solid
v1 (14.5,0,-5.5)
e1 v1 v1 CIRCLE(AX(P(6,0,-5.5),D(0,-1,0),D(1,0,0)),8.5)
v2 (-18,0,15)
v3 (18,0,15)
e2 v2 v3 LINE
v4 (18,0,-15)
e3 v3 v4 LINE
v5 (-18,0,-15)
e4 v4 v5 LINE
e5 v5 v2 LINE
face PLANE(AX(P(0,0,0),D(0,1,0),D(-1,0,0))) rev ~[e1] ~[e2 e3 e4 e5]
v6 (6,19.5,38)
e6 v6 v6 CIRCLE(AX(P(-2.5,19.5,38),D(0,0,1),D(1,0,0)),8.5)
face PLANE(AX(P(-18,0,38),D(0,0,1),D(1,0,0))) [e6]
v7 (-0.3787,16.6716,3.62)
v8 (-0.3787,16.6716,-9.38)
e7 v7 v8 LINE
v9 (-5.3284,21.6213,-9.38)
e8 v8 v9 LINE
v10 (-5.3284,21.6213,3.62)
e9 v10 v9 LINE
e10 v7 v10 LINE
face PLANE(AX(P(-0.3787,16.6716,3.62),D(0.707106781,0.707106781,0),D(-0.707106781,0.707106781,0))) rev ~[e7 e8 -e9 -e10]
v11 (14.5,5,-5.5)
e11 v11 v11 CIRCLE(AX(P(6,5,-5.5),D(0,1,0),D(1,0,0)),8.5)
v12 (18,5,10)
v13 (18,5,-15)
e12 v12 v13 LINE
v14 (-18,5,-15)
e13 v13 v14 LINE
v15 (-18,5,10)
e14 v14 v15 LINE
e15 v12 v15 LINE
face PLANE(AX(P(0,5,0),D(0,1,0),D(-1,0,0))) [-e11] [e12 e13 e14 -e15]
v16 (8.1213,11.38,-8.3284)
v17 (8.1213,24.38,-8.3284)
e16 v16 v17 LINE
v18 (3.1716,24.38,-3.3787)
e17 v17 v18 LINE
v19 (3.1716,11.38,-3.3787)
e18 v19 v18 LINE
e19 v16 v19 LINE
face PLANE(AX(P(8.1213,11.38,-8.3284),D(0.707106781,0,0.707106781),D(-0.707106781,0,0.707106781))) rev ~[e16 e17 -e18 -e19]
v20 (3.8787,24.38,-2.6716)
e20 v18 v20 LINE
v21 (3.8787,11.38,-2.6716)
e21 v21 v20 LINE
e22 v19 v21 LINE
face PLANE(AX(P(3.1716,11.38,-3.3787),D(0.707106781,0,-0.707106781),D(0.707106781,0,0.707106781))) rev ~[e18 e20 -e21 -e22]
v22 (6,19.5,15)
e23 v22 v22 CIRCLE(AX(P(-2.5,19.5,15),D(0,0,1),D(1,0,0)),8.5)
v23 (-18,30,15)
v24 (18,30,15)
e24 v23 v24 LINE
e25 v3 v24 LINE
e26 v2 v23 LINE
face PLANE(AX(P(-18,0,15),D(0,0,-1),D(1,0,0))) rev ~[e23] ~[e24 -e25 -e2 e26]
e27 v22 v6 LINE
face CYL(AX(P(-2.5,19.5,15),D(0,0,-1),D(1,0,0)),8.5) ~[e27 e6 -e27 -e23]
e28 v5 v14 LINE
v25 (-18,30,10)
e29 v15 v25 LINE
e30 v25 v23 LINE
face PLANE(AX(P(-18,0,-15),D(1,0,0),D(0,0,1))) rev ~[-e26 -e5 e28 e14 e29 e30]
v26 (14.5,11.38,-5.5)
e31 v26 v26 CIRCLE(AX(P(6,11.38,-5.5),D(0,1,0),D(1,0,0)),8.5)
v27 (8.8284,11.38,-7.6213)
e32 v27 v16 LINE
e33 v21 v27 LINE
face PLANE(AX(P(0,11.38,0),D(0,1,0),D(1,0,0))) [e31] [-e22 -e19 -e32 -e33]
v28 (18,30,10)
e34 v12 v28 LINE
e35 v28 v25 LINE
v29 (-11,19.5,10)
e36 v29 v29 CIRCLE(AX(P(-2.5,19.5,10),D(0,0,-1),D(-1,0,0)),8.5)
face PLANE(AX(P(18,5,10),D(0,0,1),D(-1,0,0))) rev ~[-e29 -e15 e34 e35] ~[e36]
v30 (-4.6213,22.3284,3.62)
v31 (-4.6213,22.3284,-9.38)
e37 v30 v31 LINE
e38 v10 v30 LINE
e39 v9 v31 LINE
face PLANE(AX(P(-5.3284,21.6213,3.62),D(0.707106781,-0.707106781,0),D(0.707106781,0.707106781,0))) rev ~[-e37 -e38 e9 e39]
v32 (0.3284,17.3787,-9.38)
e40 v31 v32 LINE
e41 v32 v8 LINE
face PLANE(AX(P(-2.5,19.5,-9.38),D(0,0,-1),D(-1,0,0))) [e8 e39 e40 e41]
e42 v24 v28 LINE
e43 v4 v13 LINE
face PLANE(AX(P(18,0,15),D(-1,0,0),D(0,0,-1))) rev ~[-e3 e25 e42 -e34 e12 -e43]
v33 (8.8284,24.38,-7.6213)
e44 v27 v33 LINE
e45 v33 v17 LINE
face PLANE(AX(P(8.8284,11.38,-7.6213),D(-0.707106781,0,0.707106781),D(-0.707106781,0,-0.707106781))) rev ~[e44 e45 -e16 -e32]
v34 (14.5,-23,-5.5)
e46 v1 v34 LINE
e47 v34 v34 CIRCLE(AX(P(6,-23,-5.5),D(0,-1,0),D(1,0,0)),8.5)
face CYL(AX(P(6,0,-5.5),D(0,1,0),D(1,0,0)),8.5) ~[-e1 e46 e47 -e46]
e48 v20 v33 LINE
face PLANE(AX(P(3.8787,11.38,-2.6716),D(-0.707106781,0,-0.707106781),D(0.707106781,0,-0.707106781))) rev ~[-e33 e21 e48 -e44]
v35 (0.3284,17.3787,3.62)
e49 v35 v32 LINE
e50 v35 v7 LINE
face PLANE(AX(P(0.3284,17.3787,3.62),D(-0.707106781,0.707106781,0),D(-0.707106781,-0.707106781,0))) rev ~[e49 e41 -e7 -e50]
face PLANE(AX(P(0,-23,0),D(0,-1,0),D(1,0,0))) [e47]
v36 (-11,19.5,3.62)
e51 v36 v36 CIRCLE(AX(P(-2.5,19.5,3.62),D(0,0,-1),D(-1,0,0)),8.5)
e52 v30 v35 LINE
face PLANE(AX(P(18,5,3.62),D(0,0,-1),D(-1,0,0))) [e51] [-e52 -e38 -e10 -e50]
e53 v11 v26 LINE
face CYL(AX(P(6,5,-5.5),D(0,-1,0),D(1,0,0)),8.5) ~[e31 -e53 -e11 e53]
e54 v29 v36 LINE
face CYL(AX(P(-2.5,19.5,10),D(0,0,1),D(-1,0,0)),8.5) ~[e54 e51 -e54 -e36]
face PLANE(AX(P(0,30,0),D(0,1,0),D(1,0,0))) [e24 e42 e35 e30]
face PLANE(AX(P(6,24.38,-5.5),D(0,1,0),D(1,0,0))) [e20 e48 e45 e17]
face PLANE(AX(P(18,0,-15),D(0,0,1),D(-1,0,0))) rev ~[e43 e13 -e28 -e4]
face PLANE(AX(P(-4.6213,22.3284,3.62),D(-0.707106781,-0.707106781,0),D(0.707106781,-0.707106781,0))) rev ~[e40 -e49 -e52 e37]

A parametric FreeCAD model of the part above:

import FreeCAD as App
import Part
import Sketcher
Q = App.Units.Quantity

doc = App.newDocument("Part")
body = doc.addObject("PartDesign::Body", "Body")

sketch1 = body.newObject("Sketcher::SketchObject", "Sketch")
sketch1.AttachmentSupport = (doc.getObject("XZ_Plane"), [""])
sketch1.MapMode = "FlatFace"
sketch1.addGeometry([
    Part.LineSegment(App.Vector(-18, -15, 0), App.Vector(-18, 15, 0)),
    Part.LineSegment(App.Vector(-18, 15, 0), App.Vector(18, 15, 0)),
    Part.LineSegment(App.Vector(18, 15, 0), App.Vector(18, -15, 0)),
    Part.LineSegment(App.Vector(18, -15, 0), App.Vector(-18, -15, 0)),
], False)
sketch1.addConstraint([
    Sketcher.Constraint("Coincident", 0, 2, 1, 1),
    Sketcher.Constraint("Coincident", 1, 2, 2, 1),
    Sketcher.Constraint("Coincident", 2, 2, 3, 1),
    Sketcher.Constraint("Coincident", 3, 2, 0, 1),
    Sketcher.Constraint("Vertical", 0),
    Sketcher.Constraint("Horizontal", 1),
    Sketcher.Constraint("Vertical", 2),
    Sketcher.Constraint("Horizontal", 3),
    Sketcher.Constraint("Symmetric", 0, 2, 2, 2, -1, 1),
    Sketcher.Constraint("DistanceX", 1, 1, 1, 2, Q("36 mm")),
    Sketcher.Constraint("DistanceY", 0, 1, 0, 2, Q("30 mm")),
])
pad1 = body.newObject("PartDesign::Pad", "Pad")
pad1.Profile = sketch1
pad1.Length = 5
pad1.Reversed = True

sketch2 = body.newObject("Sketcher::SketchObject", "Sketch001")
sketch2.AttachmentSupport = (doc.getObject("XZ_Plane"), [""])
sketch2.MapMode = "FlatFace"
sketch2.AttachmentOffset = App.Placement(App.Vector(0, 0, -5), App.Rotation())
sketch2.addGeometry([
    Part.LineSegment(App.Vector(-18, 10, 0), App.Vector(-18, 15, 0)),
    Part.LineSegment(App.Vector(-18, 15, 0), App.Vector(18, 15, 0)),
    Part.LineSegment(App.Vector(18, 15, 0), App.Vector(18, 10, 0)),
    Part.LineSegment(App.Vector(18, 10, 0), App.Vector(-18, 10, 0)),
], False)
sketch2.addConstraint([
    Sketcher.Constraint("Coincident", 0, 2, 1, 1),
    Sketcher.Constraint("Coincident", 1, 2, 2, 1),
    Sketcher.Constraint("Coincident", 2, 2, 3, 1),
    Sketcher.Constraint("Coincident", 3, 2, 0, 1),
    Sketcher.Constraint("Vertical", 0),
    Sketcher.Constraint("Horizontal", 1),
    Sketcher.Constraint("Vertical", 2),
    Sketcher.Constraint("Horizontal", 3),
    Sketcher.Constraint("DistanceY", 0, 1, 0, 2, Q("5 mm")),
    Sketcher.Constraint("DistanceX", 1, 1, 1, 2, Q("36 mm")),
    Sketcher.Constraint("DistanceX", 0, 2, -1, 1, Q("18 mm")),
    Sketcher.Constraint("DistanceY", -1, 1, 0, 2, Q("15 mm")),
])
pad2 = body.newObject("PartDesign::Pad", "Pad001")
pad2.Profile = sketch2
pad2.Length = 25
pad2.Reversed = True

sketch3 = body.newObject("Sketcher::SketchObject", "Sketch002")
sketch3.AttachmentSupport = (doc.getObject("XZ_Plane"), [""])
sketch3.MapMode = "FlatFace"
sketch3.addGeometry(Part.Circle(App.Vector(6, -6, 0), App.Vector(0, 0, 1), 8), False)
sketch3.addConstraint([
    Sketcher.Constraint("Diameter", 0, Q("17 mm")),
    Sketcher.Constraint("DistanceX", -1, 1, 0, 3, Q("6 mm")),
    Sketcher.Constraint("DistanceY", 0, 3, -1, 1, Q("5.5 mm")),
])
pad3 = body.newObject("PartDesign::Pad", "Pad002")
pad3.Profile = sketch3
pad3.Length = 23

sketch4 = body.newObject("Sketcher::SketchObject", "Sketch003")
sketch4.AttachmentSupport = (doc.getObject("XY_Plane"), [""])
sketch4.MapMode = "FlatFace"
sketch4.AttachmentOffset = App.Placement(App.Vector(0, 0, 15), App.Rotation())
sketch4.addGeometry(Part.Circle(App.Vector(-2, 20, 0), App.Vector(0, 0, 1), 8), False)
sketch4.addConstraint([
    Sketcher.Constraint("Diameter", 0, Q("17 mm")),
    Sketcher.Constraint("DistanceX", 0, 3, -1, 1, Q("2.5 mm")),
    Sketcher.Constraint("DistanceY", -1, 1, 0, 3, Q("19.5 mm")),
])
pad4 = body.newObject("PartDesign::Pad", "Pad003")
pad4.Profile = sketch4
pad4.Length = 23

sketch5 = body.newObject("Sketcher::SketchObject", "Sketch004")
sketch5.AttachmentSupport = (doc.getObject("XY_Plane"), [""])
sketch5.MapMode = "FlatFace"
sketch5.AttachmentOffset = App.Placement(App.Vector(0, 0, 10), App.Rotation())
sketch5.addGeometry(Part.Circle(App.Vector(-2, 20, 0), App.Vector(0, 0, 1), 8), False)
sketch5.addConstraint([
    Sketcher.Constraint("Diameter", 0, Q("17 mm")),
    Sketcher.Constraint("DistanceX", 0, 3, -1, 1, Q("2.5 mm")),
    Sketcher.Constraint("DistanceY", -1, 1, 0, 3, Q("19.5 mm")),
])
pad5 = body.newObject("PartDesign::Pad", "Pad004")
pad5.Profile = sketch5
pad5.Length = 6.38
pad5.Reversed = True

sketch6 = body.newObject("Sketcher::SketchObject", "Sketch005")
sketch6.AttachmentSupport = (doc.getObject("XZ_Plane"), [""])
sketch6.MapMode = "FlatFace"
sketch6.AttachmentOffset = App.Placement(App.Vector(0, 0, -5), App.Rotation())
sketch6.addGeometry(Part.Circle(App.Vector(6, -6, 0), App.Vector(0, 0, 1), 8), False)
sketch6.addConstraint([
    Sketcher.Constraint("Diameter", 0, Q("17 mm")),
    Sketcher.Constraint("DistanceX", -1, 1, 0, 3, Q("6 mm")),
    Sketcher.Constraint("DistanceY", 0, 3, -1, 1, Q("5.5 mm")),
])
pad6 = body.newObject("PartDesign::Pad", "Pad005")
pad6.Profile = sketch6
pad6.Length = 6.38
pad6.Reversed = True

sketch7 = body.newObject("Sketcher::SketchObject", "Sketch006")
sketch7.AttachmentSupport = (doc.getObject("XZ_Plane"), [""])
sketch7.MapMode = "FlatFace"
sketch7.AttachmentOffset = App.Placement(App.Vector(0, 0, -11.38), App.Rotation())
sketch7.addGeometry([
    Part.LineSegment(App.Vector(3.2, -3.4, 0), App.Vector(3.9, -2.7, 0)),
    Part.LineSegment(App.Vector(3.9, -2.7, 0), App.Vector(8.8, -7.6, 0)),
    Part.LineSegment(App.Vector(8.8, -7.6, 0), App.Vector(8.1, -8.3, 0)),
    Part.LineSegment(App.Vector(8.1, -8.3, 0), App.Vector(3.2, -3.4, 0)),
], False)
sketch7.addConstraint([
    Sketcher.Constraint("Coincident", 0, 2, 1, 1),
    Sketcher.Constraint("Coincident", 1, 2, 2, 1),
    Sketcher.Constraint("Coincident", 2, 2, 3, 1),
    Sketcher.Constraint("Coincident", 3, 2, 0, 1),
    Sketcher.Constraint("Perpendicular", 0, 1),
    Sketcher.Constraint("Perpendicular", 1, 2),
    Sketcher.Constraint("Perpendicular", 2, 3),
    Sketcher.Constraint("Distance", 0, Q("1 mm")),
    Sketcher.Constraint("Distance", 1, Q("7 mm")),
    Sketcher.Constraint("Angle", 0, Q("45 deg")),
    Sketcher.Constraint("DistanceX", -1, 1, 0, 2, Q("3.8787 mm")),
    Sketcher.Constraint("DistanceY", 0, 2, -1, 1, Q("2.6716 mm")),
])
pad7 = body.newObject("PartDesign::Pad", "Pad006")
pad7.Profile = sketch7
pad7.Length = 13
pad7.Reversed = True

sketch8 = body.newObject("Sketcher::SketchObject", "Sketch007")
sketch8.AttachmentSupport = (doc.getObject("XY_Plane"), [""])
sketch8.MapMode = "FlatFace"
sketch8.AttachmentOffset = App.Placement(App.Vector(0, 0, 3.62), App.Rotation())
sketch8.addGeometry([
    Part.LineSegment(App.Vector(-5.3, 21.6, 0), App.Vector(-4.6, 22.3, 0)),
    Part.LineSegment(App.Vector(-4.6, 22.3, 0), App.Vector(0.3, 17.4, 0)),
    Part.LineSegment(App.Vector(0.3, 17.4, 0), App.Vector(-0.4, 16.7, 0)),
    Part.LineSegment(App.Vector(-0.4, 16.7, 0), App.Vector(-5.3, 21.6, 0)),
], False)
sketch8.addConstraint([
    Sketcher.Constraint("Coincident", 0, 2, 1, 1),
    Sketcher.Constraint("Coincident", 1, 2, 2, 1),
    Sketcher.Constraint("Coincident", 2, 2, 3, 1),
    Sketcher.Constraint("Coincident", 3, 2, 0, 1),
    Sketcher.Constraint("Perpendicular", 0, 1),
    Sketcher.Constraint("Perpendicular", 1, 2),
    Sketcher.Constraint("Perpendicular", 2, 3),
    Sketcher.Constraint("Distance", 0, Q("1 mm")),
    Sketcher.Constraint("Distance", 1, Q("7 mm")),
    Sketcher.Constraint("Angle", 0, Q("45 deg")),
    Sketcher.Constraint("DistanceX", 0, 2, -1, 1, Q("4.6213 mm")),
    Sketcher.Constraint("DistanceY", -1, 1, 0, 2, Q("22.3284 mm")),
])
pad8 = body.newObject("PartDesign::Pad", "Pad007")
pad8.Profile = sketch8
pad8.Length = 13
pad8.Reversed = True

doc.recompute()
